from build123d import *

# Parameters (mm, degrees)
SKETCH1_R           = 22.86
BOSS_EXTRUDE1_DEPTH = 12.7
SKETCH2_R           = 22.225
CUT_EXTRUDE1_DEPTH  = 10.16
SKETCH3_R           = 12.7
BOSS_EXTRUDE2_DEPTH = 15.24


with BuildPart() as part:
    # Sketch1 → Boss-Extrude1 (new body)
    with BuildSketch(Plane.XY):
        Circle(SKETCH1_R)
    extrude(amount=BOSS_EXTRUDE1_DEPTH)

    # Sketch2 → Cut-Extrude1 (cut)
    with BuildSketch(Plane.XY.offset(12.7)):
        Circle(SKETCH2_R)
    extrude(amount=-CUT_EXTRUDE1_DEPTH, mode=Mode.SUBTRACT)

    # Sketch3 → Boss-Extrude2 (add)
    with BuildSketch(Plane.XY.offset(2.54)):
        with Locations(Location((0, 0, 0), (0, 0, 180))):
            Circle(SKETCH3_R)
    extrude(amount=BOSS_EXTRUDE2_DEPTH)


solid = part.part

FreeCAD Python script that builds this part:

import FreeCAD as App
import Part
import Sketcher

V = App.Vector
Q = App.Units.Quantity

doc = App.newDocument("Part")
params = doc.addObject("Spreadsheet::Sheet", "Params")
for row, (alias, value) in enumerate([
    ("sketch1_diameter", "1.8 in"),
    ("pad1_length", "0.5 in"),
    ("sketch2_diameter", "1.75 in"),
    ("pocket1_length", "0.4 in"),
    ("sketch3_diameter", "1 in"),
    ("pad2_length", "0.6 in"),
], start=1):
    params.set(f"A{row}", alias)
    params.set(f"B{row}", "=" + value)
    params.setAlias(f"B{row}", alias)

body = doc.addObject("PartDesign::Body", "Body")

sketch1 = body.newObject("Sketcher::SketchObject", "Sketch")
sketch1.AttachmentSupport = (doc.getObject("XY_Plane"), [""])
sketch1.MapMode = "FlatFace"
sketch1.addGeometry(Part.Circle(V(0, 0, 0), V(0, 0, 1), 23), False)
sketch1.addConstraint(Sketcher.Constraint("Coincident", 0, 3, -1, 1))
sketch1.addConstraint(Sketcher.Constraint("Diameter", 0, Q("1.8 in")))
sketch1.setExpression("Constraints[1]", "Params.sketch1_diameter")
pad1 = body.newObject("PartDesign::Pad", "Pad")
pad1.Profile = sketch1
pad1.setExpression("Length", "Params.pad1_length")

sketch2 = body.newObject("Sketcher::SketchObject", "Sketch001")
sketch2.AttachmentSupport = (doc.getObject("XY_Plane"), [""])
sketch2.MapMode = "FlatFace"
sketch2.AttachmentOffset = App.Placement(V(0, 0, 0.5 * 25.4), App.Rotation())
sketch2.addGeometry(Part.Circle(V(0, 0, 0), V(0, 0, 1), 22), False)
sketch2.addConstraint(Sketcher.Constraint("Coincident", 0, 3, -1, 1))
sketch2.addConstraint(Sketcher.Constraint("Diameter", 0, Q("1.75 in")))
sketch2.setExpression("Constraints[1]", "Params.sketch2_diameter")
pocket1 = body.newObject("PartDesign::Pocket", "Pocket")
pocket1.Profile = sketch2
pocket1.setExpression("Length", "Params.pocket1_length")

sketch3 = body.newObject("Sketcher::SketchObject", "Sketch002")
sketch3.AttachmentSupport = (doc.getObject("XY_Plane"), [""])
sketch3.MapMode = "FlatFace"
sketch3.AttachmentOffset = App.Placement(V(0, 0, 0.1 * 25.4), App.Rotation())
sketch3.addGeometry(Part.Circle(V(0, 0, 0), V(0, 0, 1), 13), False)
sketch3.addConstraint(Sketcher.Constraint("Coincident", 0, 3, -1, 1))
sketch3.addConstraint(Sketcher.Constraint("Diameter", 0, Q("1 in")))
sketch3.setExpression("Constraints[1]", "Params.sketch3_diameter")
pad2 = body.newObject("PartDesign::Pad", "Pad001")
pad2.Profile = sketch3
pad2.setExpression("Length", "Params.pad2_length")

doc.recompute()
